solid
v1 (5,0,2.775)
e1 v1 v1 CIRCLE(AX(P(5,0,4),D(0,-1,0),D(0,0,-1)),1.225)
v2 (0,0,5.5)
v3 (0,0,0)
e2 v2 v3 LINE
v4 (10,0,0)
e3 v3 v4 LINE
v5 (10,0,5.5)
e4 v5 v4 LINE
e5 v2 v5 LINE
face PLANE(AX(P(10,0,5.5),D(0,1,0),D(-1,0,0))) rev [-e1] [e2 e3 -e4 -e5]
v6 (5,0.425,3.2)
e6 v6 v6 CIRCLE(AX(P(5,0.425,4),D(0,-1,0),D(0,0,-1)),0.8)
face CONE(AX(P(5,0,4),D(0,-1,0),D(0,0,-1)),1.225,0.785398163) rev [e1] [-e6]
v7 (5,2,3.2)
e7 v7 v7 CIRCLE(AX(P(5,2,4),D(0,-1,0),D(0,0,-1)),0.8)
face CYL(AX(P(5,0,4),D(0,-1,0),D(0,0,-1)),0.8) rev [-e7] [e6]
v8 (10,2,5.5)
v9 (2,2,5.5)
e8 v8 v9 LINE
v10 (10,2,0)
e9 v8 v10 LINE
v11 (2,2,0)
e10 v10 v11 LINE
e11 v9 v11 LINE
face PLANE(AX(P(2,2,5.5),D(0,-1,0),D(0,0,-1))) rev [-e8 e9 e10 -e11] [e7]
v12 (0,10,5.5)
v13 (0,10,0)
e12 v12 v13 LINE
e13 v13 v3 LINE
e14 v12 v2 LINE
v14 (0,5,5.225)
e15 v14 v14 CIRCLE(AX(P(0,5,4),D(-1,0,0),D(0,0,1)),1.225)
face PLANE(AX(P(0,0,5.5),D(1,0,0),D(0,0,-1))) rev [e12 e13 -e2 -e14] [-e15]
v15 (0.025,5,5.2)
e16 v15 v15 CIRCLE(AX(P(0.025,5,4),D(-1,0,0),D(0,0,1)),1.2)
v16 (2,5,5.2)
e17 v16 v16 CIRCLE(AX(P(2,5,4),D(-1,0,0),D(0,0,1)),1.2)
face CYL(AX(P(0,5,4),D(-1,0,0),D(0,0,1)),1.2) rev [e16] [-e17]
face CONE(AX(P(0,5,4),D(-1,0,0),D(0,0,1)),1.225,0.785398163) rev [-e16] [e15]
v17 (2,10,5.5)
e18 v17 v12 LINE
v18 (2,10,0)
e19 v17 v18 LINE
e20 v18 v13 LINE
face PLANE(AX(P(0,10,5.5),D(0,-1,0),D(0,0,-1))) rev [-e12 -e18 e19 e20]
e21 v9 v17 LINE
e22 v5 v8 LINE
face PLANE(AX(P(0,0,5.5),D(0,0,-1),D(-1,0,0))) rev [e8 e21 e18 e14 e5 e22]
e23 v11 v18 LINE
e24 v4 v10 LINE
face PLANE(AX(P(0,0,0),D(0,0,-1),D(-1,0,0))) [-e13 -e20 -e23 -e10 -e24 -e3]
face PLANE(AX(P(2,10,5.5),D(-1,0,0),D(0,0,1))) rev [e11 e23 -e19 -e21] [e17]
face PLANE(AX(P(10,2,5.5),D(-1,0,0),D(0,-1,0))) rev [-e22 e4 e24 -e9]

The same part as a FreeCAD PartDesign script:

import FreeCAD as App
import Part
import Sketcher
Q = App.Units.Quantity

doc = App.newDocument("Part")
body = doc.addObject("PartDesign::Body", "Body")

# Sketch on XY plane
sketch1 = doc.addObject("Sketcher::SketchObject", "Sketch")
body.addObject(sketch1)
sketch1.AttachmentSupport = (doc.XY_Plane, [""])
sketch1.MapMode = "FlatFace"
sketch1.addGeometry([
    Part.LineSegment(App.Vector(0, 10, 0), App.Vector(0, 0, 0)),  # 0
    Part.LineSegment(App.Vector(0, 0, 0), App.Vector(10, 0, 0)),  # 1
    Part.LineSegment(App.Vector(10, 0, 0), App.Vector(10, 2, 0)),  # 2
    Part.LineSegment(App.Vector(10, 2, 0), App.Vector(2, 2, 0)),  # 3
    Part.LineSegment(App.Vector(2, 2, 0), App.Vector(2, 10, 0)),  # 4
    Part.LineSegment(App.Vector(2, 10, 0), App.Vector(0, 10, 0)),  # 5
], False)
sketch1.addConstraint([
    Sketcher.Constraint("Coincident", 0, 2, 1, 1),
    Sketcher.Constraint("Coincident", 1, 2, 2, 1),
    Sketcher.Constraint("Coincident", 2, 2, 3, 1),
    Sketcher.Constraint("Coincident", 3, 2, 4, 1),
    Sketcher.Constraint("Coincident", 4, 2, 5, 1),
    Sketcher.Constraint("Coincident", 5, 2, 0, 1),
    Sketcher.Constraint("Vertical", 0),
    Sketcher.Constraint("Horizontal", 1),
    Sketcher.Constraint("Vertical", 2),
    Sketcher.Constraint("Horizontal", 3),
    Sketcher.Constraint("Vertical", 4),
    Sketcher.Constraint("Horizontal", 5),
    Sketcher.Constraint("Coincident", 0, 2, -1, 1),
    Sketcher.Constraint("Equal", 1, 0),
    Sketcher.Constraint("Equal", 5, 2),
    Sketcher.Constraint("DistanceX", 1, 1, 1, 2, Q("10 mm")),
    Sketcher.Constraint("DistanceX", 3, 2, 3, 1, Q("8 mm")),
])
pad1 = doc.addObject("PartDesign::Pad", "Pad")
body.addObject(pad1)
pad1.Profile = sketch1
pad1.Length = 5.5

# Sketch on YZ plane
sketch2 = doc.addObject("Sketcher::SketchObject", "Sketch001")
body.addObject(sketch2)
sketch2.AttachmentSupport = (doc.YZ_Plane, [""])
sketch2.MapMode = "FlatFace"
sketch2.addGeometry(Part.Circle(App.Vector(5, 4, 0), App.Vector(0, 0, 1), 1.2), False)
sketch2.addConstraint([
    Sketcher.Constraint("Diameter", 0, Q("2.4 mm")),
    Sketcher.Constraint("DistanceX", -1, 1, 0, 3, Q("5 mm")),
    Sketcher.Constraint("DistanceY", -1, 1, 0, 3, Q("4 mm")),
])
doc.recompute()
hole = doc.addObject("PartDesign::Hole", "Hole")
body.addObject(hole)
hole.Profile = sketch2
hole.ThreadType = "None"
hole.Diameter = 2.4
hole.DepthType = "ThroughAll"
hole.HoleCutType = "Countersink"
hole.HoleCutDiameter = 2.45
hole.HoleCutCountersinkAngle = 90
hole.Reversed = True

# Sketch on XZ plane
sketch3 = doc.addObject("Sketcher::SketchObject", "Sketch002")
body.addObject(sketch3)
sketch3.AttachmentSupport = (doc.XZ_Plane, [""])
sketch3.MapMode = "FlatFace"
sketch3.addGeometry(Part.Circle(App.Vector(5, 4, 0), App.Vector(0, 0, 1), 0.8), False)
sketch3.addConstraint([
    Sketcher.Constraint("Diameter", 0, Q("1.6 mm")),
    Sketcher.Constraint("DistanceX", -1, 1, 0, 3, Q("5 mm")),
    Sketcher.Constraint("DistanceY", -1, 1, 0, 3, Q("4 mm")),
])
doc.recompute()
hole2 = doc.addObject("PartDesign::Hole", "Hole001")
body.addObject(hole2)
hole2.Profile = sketch3
hole2.ThreadType = "None"
hole2.Diameter = 1.6
hole2.DepthType = "ThroughAll"
hole2.HoleCutType = "Countersink"
hole2.HoleCutDiameter = 2.45
hole2.HoleCutCountersinkAngle = 90

doc.recompute()
